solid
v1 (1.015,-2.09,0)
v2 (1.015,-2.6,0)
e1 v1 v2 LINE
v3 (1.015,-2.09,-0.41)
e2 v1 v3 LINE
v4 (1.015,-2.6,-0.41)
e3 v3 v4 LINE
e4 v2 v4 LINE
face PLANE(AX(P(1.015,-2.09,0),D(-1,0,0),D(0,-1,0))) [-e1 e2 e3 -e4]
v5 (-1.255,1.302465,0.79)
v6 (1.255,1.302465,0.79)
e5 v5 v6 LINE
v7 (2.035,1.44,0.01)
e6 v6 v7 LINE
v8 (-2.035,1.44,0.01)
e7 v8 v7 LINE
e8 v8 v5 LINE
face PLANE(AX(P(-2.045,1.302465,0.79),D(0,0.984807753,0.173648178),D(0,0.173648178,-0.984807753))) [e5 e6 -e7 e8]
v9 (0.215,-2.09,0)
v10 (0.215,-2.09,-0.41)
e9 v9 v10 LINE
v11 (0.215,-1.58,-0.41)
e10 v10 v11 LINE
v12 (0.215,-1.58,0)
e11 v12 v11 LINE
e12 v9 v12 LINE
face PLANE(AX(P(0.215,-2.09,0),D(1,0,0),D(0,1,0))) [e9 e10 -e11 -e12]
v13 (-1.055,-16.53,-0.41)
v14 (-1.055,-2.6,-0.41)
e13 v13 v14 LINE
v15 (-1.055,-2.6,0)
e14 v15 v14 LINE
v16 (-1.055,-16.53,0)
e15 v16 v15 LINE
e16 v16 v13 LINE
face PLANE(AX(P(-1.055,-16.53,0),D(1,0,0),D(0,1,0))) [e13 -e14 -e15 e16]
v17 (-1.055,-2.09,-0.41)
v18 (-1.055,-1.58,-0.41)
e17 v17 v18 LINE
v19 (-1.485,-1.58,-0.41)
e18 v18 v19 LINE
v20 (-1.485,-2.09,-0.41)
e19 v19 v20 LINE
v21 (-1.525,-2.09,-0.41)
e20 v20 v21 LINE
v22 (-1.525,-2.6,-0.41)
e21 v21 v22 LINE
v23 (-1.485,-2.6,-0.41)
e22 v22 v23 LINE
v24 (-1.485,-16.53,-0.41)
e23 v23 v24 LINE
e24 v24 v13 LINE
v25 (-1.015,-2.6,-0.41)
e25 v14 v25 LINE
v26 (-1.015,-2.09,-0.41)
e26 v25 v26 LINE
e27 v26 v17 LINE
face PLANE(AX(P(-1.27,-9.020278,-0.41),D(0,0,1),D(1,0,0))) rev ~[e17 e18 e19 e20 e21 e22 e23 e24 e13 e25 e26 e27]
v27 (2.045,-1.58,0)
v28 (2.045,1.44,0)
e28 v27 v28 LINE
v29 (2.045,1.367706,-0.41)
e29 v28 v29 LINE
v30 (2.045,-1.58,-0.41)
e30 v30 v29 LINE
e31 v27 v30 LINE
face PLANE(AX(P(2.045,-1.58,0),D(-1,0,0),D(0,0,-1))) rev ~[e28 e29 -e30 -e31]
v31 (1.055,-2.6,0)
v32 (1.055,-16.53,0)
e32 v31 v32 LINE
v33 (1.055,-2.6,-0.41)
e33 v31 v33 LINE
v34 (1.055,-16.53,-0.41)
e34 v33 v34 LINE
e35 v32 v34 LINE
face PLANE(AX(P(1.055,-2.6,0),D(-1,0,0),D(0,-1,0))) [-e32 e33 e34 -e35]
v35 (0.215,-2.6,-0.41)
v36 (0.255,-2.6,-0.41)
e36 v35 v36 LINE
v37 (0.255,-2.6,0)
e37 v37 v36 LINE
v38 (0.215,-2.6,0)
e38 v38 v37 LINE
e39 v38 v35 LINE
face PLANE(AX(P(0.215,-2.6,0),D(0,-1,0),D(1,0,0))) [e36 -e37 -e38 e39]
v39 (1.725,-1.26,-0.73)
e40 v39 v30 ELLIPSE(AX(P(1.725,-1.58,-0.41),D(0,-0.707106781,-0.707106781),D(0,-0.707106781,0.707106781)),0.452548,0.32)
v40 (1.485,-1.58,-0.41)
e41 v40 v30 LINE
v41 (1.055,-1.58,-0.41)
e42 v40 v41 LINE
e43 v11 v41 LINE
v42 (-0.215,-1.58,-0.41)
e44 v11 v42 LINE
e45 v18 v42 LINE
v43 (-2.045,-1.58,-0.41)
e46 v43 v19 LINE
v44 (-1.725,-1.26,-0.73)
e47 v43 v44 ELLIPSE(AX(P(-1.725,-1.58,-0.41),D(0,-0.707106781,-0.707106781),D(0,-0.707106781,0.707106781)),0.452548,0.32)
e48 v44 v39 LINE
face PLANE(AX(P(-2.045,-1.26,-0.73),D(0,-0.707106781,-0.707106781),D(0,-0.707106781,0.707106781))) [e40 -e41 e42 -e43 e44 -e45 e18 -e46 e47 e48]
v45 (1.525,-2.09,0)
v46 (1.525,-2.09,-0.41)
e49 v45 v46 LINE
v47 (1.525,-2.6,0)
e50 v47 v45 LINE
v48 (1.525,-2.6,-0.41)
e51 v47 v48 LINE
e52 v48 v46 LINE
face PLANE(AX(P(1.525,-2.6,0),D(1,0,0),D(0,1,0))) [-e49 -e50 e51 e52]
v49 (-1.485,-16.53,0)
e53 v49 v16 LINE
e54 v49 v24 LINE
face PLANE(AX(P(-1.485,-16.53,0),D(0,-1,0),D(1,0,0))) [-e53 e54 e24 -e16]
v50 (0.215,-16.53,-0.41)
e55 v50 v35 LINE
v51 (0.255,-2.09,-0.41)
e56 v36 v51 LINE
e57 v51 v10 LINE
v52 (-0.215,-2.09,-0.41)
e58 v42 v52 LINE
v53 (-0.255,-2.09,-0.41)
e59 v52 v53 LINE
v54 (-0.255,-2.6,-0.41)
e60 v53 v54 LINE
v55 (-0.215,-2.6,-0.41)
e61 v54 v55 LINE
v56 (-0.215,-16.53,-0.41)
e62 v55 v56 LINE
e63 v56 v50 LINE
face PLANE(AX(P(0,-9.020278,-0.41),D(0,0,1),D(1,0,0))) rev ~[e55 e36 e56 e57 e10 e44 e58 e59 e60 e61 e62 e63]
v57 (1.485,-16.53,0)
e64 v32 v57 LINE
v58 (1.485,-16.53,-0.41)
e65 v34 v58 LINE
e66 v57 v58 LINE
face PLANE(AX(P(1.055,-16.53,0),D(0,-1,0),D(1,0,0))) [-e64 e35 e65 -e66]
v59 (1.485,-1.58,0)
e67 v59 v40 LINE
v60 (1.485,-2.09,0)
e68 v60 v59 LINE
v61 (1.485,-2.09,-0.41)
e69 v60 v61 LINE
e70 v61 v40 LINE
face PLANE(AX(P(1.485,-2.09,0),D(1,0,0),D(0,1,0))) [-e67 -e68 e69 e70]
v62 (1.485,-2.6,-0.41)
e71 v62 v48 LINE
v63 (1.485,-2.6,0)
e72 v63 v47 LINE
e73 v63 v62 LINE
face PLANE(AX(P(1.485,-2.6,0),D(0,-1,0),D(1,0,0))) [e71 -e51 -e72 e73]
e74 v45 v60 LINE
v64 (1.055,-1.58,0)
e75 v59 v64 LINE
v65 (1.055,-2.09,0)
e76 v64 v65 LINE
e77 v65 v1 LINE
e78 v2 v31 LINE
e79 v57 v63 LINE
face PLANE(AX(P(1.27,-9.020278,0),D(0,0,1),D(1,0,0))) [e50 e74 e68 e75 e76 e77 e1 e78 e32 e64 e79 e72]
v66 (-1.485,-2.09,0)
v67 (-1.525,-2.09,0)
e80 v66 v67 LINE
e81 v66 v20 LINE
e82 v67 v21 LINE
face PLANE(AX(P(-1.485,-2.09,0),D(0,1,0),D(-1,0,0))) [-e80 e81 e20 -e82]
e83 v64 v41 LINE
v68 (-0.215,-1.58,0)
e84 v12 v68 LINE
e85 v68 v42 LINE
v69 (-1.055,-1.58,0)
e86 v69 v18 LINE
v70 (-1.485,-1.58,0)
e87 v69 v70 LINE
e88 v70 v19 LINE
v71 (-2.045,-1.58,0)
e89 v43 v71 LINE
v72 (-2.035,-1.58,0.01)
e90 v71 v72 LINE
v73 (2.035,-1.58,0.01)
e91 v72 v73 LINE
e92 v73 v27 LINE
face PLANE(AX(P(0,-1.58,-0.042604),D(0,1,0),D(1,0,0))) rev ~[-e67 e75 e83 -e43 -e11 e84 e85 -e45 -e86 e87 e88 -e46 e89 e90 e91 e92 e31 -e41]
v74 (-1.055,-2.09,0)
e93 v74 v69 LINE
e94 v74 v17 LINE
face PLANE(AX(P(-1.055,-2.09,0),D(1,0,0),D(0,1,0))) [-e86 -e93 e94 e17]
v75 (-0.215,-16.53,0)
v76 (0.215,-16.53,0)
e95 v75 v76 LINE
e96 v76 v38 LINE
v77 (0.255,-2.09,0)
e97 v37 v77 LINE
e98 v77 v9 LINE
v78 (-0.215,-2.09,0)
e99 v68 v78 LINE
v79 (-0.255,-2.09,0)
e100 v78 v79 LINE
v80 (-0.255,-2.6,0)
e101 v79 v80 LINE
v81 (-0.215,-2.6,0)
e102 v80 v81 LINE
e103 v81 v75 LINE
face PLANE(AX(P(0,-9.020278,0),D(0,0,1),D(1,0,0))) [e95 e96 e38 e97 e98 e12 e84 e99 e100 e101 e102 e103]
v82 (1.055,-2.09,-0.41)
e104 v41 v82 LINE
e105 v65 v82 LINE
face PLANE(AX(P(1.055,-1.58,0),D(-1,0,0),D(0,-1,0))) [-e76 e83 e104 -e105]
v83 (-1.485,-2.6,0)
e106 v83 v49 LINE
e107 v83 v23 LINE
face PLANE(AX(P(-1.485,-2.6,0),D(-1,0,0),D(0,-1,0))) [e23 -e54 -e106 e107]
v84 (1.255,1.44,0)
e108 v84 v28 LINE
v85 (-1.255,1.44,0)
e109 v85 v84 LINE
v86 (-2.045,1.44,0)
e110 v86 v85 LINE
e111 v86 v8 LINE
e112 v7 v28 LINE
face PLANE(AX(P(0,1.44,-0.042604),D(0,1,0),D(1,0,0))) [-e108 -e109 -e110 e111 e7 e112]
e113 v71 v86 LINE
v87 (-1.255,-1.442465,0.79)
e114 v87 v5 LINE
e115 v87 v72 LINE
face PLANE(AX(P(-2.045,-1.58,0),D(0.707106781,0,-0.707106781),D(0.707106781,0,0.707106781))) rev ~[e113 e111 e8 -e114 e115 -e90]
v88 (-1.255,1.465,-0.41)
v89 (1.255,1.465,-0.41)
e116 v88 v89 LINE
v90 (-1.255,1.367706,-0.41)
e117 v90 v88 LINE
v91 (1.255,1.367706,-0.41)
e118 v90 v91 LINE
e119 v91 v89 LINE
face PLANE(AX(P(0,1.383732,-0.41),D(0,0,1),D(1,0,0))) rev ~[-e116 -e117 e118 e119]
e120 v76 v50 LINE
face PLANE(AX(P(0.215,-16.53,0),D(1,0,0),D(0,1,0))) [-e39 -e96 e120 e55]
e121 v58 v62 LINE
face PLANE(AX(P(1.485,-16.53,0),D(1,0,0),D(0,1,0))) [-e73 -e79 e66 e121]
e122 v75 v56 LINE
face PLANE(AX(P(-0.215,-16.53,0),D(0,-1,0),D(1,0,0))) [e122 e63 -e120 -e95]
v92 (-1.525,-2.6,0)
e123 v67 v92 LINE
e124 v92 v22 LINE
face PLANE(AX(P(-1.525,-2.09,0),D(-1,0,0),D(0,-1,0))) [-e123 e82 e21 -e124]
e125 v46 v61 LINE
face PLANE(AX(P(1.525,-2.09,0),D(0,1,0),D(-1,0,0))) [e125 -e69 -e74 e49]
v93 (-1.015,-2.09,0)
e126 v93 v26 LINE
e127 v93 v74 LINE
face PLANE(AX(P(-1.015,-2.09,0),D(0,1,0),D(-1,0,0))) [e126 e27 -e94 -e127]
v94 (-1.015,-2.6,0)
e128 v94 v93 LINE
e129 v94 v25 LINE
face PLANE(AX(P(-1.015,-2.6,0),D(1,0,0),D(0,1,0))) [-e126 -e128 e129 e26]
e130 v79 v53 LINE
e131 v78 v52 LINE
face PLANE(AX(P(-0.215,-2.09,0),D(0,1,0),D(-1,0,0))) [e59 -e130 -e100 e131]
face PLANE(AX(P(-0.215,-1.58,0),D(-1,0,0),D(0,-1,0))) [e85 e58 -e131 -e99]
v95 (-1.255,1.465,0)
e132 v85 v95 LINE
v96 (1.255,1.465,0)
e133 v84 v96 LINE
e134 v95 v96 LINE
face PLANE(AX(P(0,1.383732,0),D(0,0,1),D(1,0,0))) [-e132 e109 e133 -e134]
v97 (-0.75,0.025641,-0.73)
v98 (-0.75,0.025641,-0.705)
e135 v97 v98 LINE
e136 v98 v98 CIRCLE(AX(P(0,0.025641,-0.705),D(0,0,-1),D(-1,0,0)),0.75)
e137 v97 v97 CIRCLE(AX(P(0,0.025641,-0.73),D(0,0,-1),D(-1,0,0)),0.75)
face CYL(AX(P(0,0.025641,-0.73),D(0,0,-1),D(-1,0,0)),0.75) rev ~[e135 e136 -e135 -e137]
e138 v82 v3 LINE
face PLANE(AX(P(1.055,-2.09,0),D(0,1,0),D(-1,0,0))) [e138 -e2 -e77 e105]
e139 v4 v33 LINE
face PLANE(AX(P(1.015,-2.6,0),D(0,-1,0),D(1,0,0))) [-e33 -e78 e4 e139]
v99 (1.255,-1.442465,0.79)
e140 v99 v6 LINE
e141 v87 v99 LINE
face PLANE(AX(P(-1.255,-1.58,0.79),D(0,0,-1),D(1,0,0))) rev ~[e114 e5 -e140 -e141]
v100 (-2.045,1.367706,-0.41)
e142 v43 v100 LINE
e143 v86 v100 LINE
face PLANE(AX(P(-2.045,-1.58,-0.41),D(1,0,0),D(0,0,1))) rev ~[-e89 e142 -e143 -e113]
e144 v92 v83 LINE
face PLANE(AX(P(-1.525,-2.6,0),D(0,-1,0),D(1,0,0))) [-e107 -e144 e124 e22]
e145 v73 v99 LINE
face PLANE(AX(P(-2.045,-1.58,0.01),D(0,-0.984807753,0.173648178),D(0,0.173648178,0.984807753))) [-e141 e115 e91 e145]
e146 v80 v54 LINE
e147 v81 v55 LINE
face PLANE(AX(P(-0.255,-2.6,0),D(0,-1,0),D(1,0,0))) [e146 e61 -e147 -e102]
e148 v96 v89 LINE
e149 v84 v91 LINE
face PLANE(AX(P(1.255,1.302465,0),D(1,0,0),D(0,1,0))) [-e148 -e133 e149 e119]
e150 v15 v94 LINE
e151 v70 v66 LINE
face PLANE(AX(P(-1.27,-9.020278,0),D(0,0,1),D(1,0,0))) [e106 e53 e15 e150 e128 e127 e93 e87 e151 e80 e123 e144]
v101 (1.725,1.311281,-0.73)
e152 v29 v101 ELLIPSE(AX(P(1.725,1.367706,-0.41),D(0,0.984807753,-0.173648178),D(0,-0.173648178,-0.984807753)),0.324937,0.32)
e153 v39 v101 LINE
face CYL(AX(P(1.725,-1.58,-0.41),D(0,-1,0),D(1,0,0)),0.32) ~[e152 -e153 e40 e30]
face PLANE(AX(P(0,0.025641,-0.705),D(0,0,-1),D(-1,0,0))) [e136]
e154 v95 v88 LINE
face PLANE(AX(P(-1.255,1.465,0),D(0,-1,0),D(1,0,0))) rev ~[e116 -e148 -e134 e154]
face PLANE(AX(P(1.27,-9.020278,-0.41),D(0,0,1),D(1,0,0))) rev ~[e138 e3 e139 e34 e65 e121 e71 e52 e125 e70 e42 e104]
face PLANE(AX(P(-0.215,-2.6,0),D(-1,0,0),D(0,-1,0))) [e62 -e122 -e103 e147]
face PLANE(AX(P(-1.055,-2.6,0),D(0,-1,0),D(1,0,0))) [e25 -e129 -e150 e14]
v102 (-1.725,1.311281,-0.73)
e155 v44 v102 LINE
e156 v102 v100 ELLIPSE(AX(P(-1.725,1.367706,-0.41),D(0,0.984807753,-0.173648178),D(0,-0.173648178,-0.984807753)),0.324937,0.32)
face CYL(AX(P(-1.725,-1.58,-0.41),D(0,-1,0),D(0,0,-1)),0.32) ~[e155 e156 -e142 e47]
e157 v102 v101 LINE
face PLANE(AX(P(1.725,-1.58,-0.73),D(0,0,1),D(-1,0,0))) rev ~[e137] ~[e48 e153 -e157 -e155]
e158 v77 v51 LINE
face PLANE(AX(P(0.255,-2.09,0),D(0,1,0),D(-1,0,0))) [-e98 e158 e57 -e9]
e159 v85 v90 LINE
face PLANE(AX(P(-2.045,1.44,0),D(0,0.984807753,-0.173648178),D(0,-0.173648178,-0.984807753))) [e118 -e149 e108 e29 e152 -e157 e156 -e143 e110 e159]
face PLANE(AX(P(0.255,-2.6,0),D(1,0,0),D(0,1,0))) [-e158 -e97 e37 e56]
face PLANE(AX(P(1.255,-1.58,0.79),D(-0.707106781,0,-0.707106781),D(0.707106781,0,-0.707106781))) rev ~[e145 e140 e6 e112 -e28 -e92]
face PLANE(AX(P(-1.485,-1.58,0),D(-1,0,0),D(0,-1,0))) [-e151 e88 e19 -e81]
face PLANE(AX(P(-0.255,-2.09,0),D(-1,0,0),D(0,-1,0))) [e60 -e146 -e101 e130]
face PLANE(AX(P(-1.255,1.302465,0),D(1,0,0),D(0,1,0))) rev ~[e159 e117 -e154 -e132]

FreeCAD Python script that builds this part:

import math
import FreeCAD as App
import Part
import Sketcher

V = App.Vector
Q = App.Units.Quantity


def add_polygon(sketch, points):
    """Adds a closed chain of lines whose ends are joined by coincident constraints."""
    first, n = sketch.GeometryCount, len(points)
    for a, b in zip(points, points[1:] + points[:1]):
        sketch.addGeometry(Part.LineSegment(App.Vector(*a, 0), App.Vector(*b, 0)), False)
    for i in range(n):
        sketch.addConstraint(Sketcher.Constraint("Coincident", first + i, 2, first + (i + 1) % n, 1))

doc = App.newDocument("Part")
params = doc.addObject("Spreadsheet::Sheet", "Params")
for row, (alias, value) in enumerate([
    ("sketch1_radius", "0.32 mm"),
    ("sketch1_width", "2.51 mm"),
    ("sketch1_width2", "3.45 mm"),
    ("sketch1_height", "0.41 mm"),
    ("pad1_length", "1.44 mm"),
    ("pad1_length2", "1.58 mm"),
    ("sketch2_width", "0.32 mm"),
    ("sketch2_height", "0.78 mm"),
    ("sketch2_height2", "0.73 mm"),
    ("pocket1_length", "4.09 mm"),
    ("sketch3_width", "0.43 mm"),
    ("sketch3_width2", "0.04 mm"),
    ("sketch3_width3", "2.51 mm"),
    ("sketch3_height", "0.51 mm"),
    ("sketch3_height2", "13.93 mm"),
    ("pad2_length", "0.41 mm"),
    ("sketch4_diameter", "1.5 mm"),
    ("pocket2_length", "0.025 mm"),
], start=1):
    params.set(f"A{row}", alias)
    params.set(f"B{row}", "=" + value)
    params.setAlias(f"B{row}", alias)

body = doc.addObject("PartDesign::Body", "Body")

# Sketch on XZ plane
sketch1 = body.newObject("Sketcher::SketchObject", "Sketch")
sketch1.AttachmentSupport = (doc.getObject("XZ_Plane"), [""])
sketch1.MapMode = "FlatFace"
sketch1.addGeometry([
    Part.LineSegment(V(-2.045, 0, 0), V(-1.255, 0.79, 0)),  # 0
    Part.LineSegment(V(-1.255, 0.79, 0), V(1.255, 0.79, 0)),  # 1
    Part.LineSegment(V(1.255, 0.79, 0), V(2.045, 0, 0)),  # 2
    Part.LineSegment(V(2.045, 0, 0), V(2.045, -0.41, 0)),  # 3
    Part.ArcOfCircle(Part.Circle(V(1.725, -0.41, 0), V(0, 0, 1), 0.32), math.radians(-90), math.radians(0)),  # 4
    Part.LineSegment(V(1.725, -0.73, 0), V(-1.725, -0.73, 0)),  # 5
    Part.ArcOfCircle(Part.Circle(V(-1.725, -0.41, 0), V(0, 0, 1), 0.32), math.radians(180), math.radians(270)),  # 6
    Part.LineSegment(V(-2.045, -0.41, 0), V(-2.045, 0, 0)),  # 7
], False)
sketch1.addConstraint([
    Sketcher.Constraint("Coincident", 0, 2, 1, 1),
    Sketcher.Constraint("Coincident", 1, 2, 2, 1),
    Sketcher.Constraint("Coincident", 2, 2, 3, 1),
    Sketcher.Constraint("Tangent", 3, 2, 4, 2),
    Sketcher.Constraint("Tangent", 4, 1, 5, 1),
    Sketcher.Constraint("Tangent", 5, 2, 6, 2),
    Sketcher.Constraint("Tangent", 6, 1, 7, 1),
    Sketcher.Constraint("Coincident", 7, 2, 0, 1),
    Sketcher.Constraint("Horizontal", 1),
    Sketcher.Constraint("Vertical", 3),
    Sketcher.Constraint("Horizontal", 5),
    Sketcher.Constraint("Vertical", 7),
    Sketcher.Constraint("Equal", 4, 6),
    Sketcher.Constraint("Symmetric", 2, 2, 7, 2, -1, 1),
    Sketcher.Constraint("PointOnObject", 2, 2, -1),
    Sketcher.Constraint("Perpendicular", 0, 2),
    Sketcher.Constraint("Equal", 0, 2),
    Sketcher.Constraint("Radius", 4, 0.32),
    Sketcher.Constraint("DistanceX", 1, 1, 1, 2, 2.51),
    Sketcher.Constraint("DistanceX", 5, 2, 5, 1, 3.45),
    Sketcher.Constraint("DistanceY", 3, 2, 3, 1, 0.41),
])
sketch1.setExpression("Constraints[17]", "Params.sketch1_radius")
sketch1.setExpression("Constraints[18]", "Params.sketch1_width")
sketch1.setExpression("Constraints[19]", "Params.sketch1_width2")
sketch1.setExpression("Constraints[20]", "Params.sketch1_height")
pad1 = body.newObject("PartDesign::Pad", "Pad")
pad1.Profile = sketch1
pad1.Type = "TwoLengths"
pad1.setExpression("Length", "Params.pad1_length")
pad1.setExpression("Length2", "Params.pad1_length2")
pad1.Reversed = True

# Sketch on YZ plane
sketch2 = body.newObject("Sketcher::SketchObject", "Sketch001")
sketch2.AttachmentSupport = (doc.getObject("YZ_Plane"), [""])
sketch2.MapMode = "FlatFace"
sketch2.AttachmentOffset = App.Placement(V(0, 0, -2.045), App.Rotation())
add_polygon(sketch2, [(-1.58, -0.41), (-1.58, -0.73), (-1.26, -0.73)])  # lines 0-2
add_polygon(sketch2, [(1.44, 0.01), (1.44, 0.79), (1.302465, 0.79)])  # lines 3-5
add_polygon(sketch2, [(-1.58, 0.01), (-1.442465, 0.79), (-1.58, 0.79)])  # lines 6-8
add_polygon(sketch2, [(1.311281, -0.73), (1.44, -0.73), (1.44, 0)])  # lines 9-11
sketch2.addConstraint([
    Sketcher.Constraint("Vertical", 0),
    Sketcher.Constraint("Horizontal", 1),
    Sketcher.Constraint("Vertical", 3),
    Sketcher.Constraint("Horizontal", 4),
    Sketcher.Constraint("Horizontal", 7),
    Sketcher.Constraint("Vertical", 8),
    Sketcher.Constraint("Horizontal", 9),
    Sketcher.Constraint("Vertical", 10),
    Sketcher.Constraint("PointOnObject", 10, 2, -1),
    Sketcher.Constraint("Parallel", 6, 11),
    Sketcher.Constraint("Horizontal", 4, 2, 6, 2),
    Sketcher.Constraint("Horizontal", 5, 2, 8, 2),
    Sketcher.Constraint("Horizontal", 1, 2, 9, 2),
    Sketcher.Constraint("Vertical", 2, 2, 7, 2),
    Sketcher.Constraint("Vertical", 5, 2, 9, 2),
    Sketcher.Constraint("Equal", 4, 7),
    Sketcher.Constraint("Equal", 1, 0),
    Sketcher.Constraint("Angle", 5, Q("-80 deg")),
    Sketcher.Constraint("DistanceX", 1, 1, 1, 2, 0.32),
    Sketcher.Constraint("DistanceY", 3, 1, 3, 2, 0.78),
    Sketcher.Constraint("DistanceY", 10, 1, 10, 2, 0.73),
    Sketcher.Constraint("DistanceX", 1, 2, 3, 2, 2.7),
    Sketcher.Constraint("DistanceY", 2, 2, 3, 2, 1.2),
    Sketcher.Constraint("DistanceX", 0, 2, -1, 1, 1.58),
])
sketch2.setExpression("Constraints[30]", "Params.sketch2_width")
sketch2.setExpression("Constraints[31]", "Params.sketch2_height")
sketch2.setExpression("Constraints[32]", "Params.sketch2_height2")
pocket1 = body.newObject("PartDesign::Pocket", "Pocket")
pocket1.Profile = sketch2
pocket1.setExpression("Length", "Params.pocket1_length")
pocket1.Reversed = True

# Sketch on XY plane
sketch3 = body.newObject("Sketcher::SketchObject", "Sketch002")
sketch3.AttachmentSupport = (doc.getObject("XY_Plane"), [""])
sketch3.MapMode = "FlatFace"
add_polygon(sketch3, [(1.485, -1.58), (1.055, -1.58), (1.055, -2.09), (1.015, -2.09), (1.015, -2.6), (1.055, -2.6), (1.055, -16.53), (1.485, -16.53), (1.485, -2.6), (1.525, -2.6), (1.525, -2.09), (1.485, -2.09)])  # lines 0-11
add_polygon(sketch3, [(0.215, -1.58), (-0.215, -1.58), (-0.215, -2.09), (-0.255, -2.09), (-0.255, -2.6), (-0.215, -2.6), (-0.215, -16.53), (0.215, -16.53), (0.215, -2.6), (0.255, -2.6), (0.255, -2.09), (0.215, -2.09)])  # lines 12-23
add_polygon(sketch3, [(-1.055, -1.58), (-1.485, -1.58), (-1.485, -2.09), (-1.525, -2.09), (-1.525, -2.6), (-1.485, -2.6), (-1.485, -16.53), (-1.055, -16.53), (-1.055, -2.6), (-1.015, -2.6), (-1.015, -2.09), (-1.055, -2.09)])  # lines 24-35
add_polygon(sketch3, [(-1.255, 1.465), (-1.255, 1.302465), (1.255, 1.302465), (1.255, 1.465)])  # lines 36-39
sketch3.addConstraint([
    Sketcher.Constraint("Horizontal", 0),
    Sketcher.Constraint("Vertical", 1),
    Sketcher.Constraint("Horizontal", 2),
    Sketcher.Constraint("Vertical", 3),
    Sketcher.Constraint("Horizontal", 4),
    Sketcher.Constraint("Vertical", 5),
    Sketcher.Constraint("Horizontal", 6),
    Sketcher.Constraint("Vertical", 7),
    Sketcher.Constraint("Horizontal", 8),
    Sketcher.Constraint("Vertical", 9),
    Sketcher.Constraint("Horizontal", 10),
    Sketcher.Constraint("Vertical", 11),
    Sketcher.Constraint("Horizontal", 12),
    Sketcher.Constraint("Vertical", 13),
    Sketcher.Constraint("Horizontal", 14),
    Sketcher.Constraint("Vertical", 15),
    Sketcher.Constraint("Horizontal", 16),
    Sketcher.Constraint("Vertical", 17),
    Sketcher.Constraint("Horizontal", 18),
    Sketcher.Constraint("Vertical", 19),
    Sketcher.Constraint("Horizontal", 20),
    Sketcher.Constraint("Vertical", 21),
    Sketcher.Constraint("Horizontal", 22),
    Sketcher.Constraint("Vertical", 23),
    Sketcher.Constraint("Horizontal", 24),
    Sketcher.Constraint("Vertical", 25),
    Sketcher.Constraint("Horizontal", 26),
    Sketcher.Constraint("Vertical", 27),
    Sketcher.Constraint("Horizontal", 28),
    Sketcher.Constraint("Vertical", 29),
    Sketcher.Constraint("Horizontal", 30),
    Sketcher.Constraint("Vertical", 31),
    Sketcher.Constraint("Horizontal", 32),
    Sketcher.Constraint("Vertical", 33),
    Sketcher.Constraint("Horizontal", 34),
    Sketcher.Constraint("Vertical", 35),
    Sketcher.Constraint("Vertical", 36),
    Sketcher.Constraint("Horizontal", 37),
    Sketcher.Constraint("Vertical", 38),
    Sketcher.Constraint("Horizontal", 39),
    Sketcher.Constraint("Symmetric", 16, 2, 19, 2, -2),
    Sketcher.Constraint("Symmetric", 14, 2, 21, 2, -2),
    Sketcher.Constraint("Symmetric", 11, 2, 24, 2, -2),
    Sketcher.Constraint("Symmetric", 9, 2, 26, 2, -2),
    Sketcher.Constraint("Symmetric", 7, 2, 28, 2, -2),
    Sketcher.Constraint("Symmetric", 5, 2, 30, 2, -2),
    Sketcher.Constraint("Symmetric", 3, 2, 32, 2, -2),
    Sketcher.Constraint("Symmetric", 1, 2, 34, 2, -2),
    Sketcher.Constraint("Horizontal", 4, 2, 7, 2),
    Sketcher.Constraint("Horizontal", 2, 2, 9, 2),
    Sketcher.Constraint("Horizontal", 11, 2, 12, 2),
    Sketcher.Constraint("Horizontal", 10, 2, 13, 2),
    Sketcher.Constraint("Horizontal", 8, 2, 15, 2),
    Sketcher.Constraint("Horizontal", 6, 2, 17, 2),
    Sketcher.Constraint("Vertical", 1, 2, 4, 2),
    Sketcher.Constraint("Vertical", 7, 2, 10, 2),
    Sketcher.Constraint("Vertical", 13, 2, 16, 2),
    Sketcher.Constraint("Vertical", 19, 2, 22, 2),
    Sketcher.Constraint("Equal", 4, 8),
    Sketcher.Constraint("Equal", 6, 12),
    Sketcher.Constraint("Equal", 10, 14),
    Sketcher.Constraint("Equal", 1, 3),
    Sketcher.Constraint("DistanceX", 0, 2, 0, 1, 0.43),
    Sketcher.Constraint("DistanceX", 2, 2, 2, 1, 0.04),
    Sketcher.Constraint("DistanceX", 37, 1, 37, 2, 2.51),
    Sketcher.Constraint("DistanceY", 1, 2, 1, 1, 0.51),
    Sketcher.Constraint("DistanceY", 5, 2, 5, 1, 13.93),
    Sketcher.Constraint("DistanceY", 3, 2, -1, 1, 2.6),
    Sketcher.Constraint("DistanceX", 17, 2, 6, 2, 1.7),
    Sketcher.Constraint("DistanceX", 36, 2, 35, 2, 0.2),
    Sketcher.Constraint("DistanceY", -1, 1, 38, 2, 1.465),
    Sketcher.Constraint("DistanceY", 36, 2, 36, 1, 0.162535),
])
sketch3.setExpression("Constraints[102]", "Params.sketch3_width")
sketch3.setExpression("Constraints[103]", "Params.sketch3_width2")
sketch3.setExpression("Constraints[104]", "Params.sketch3_width3")
sketch3.setExpression("Constraints[105]", "Params.sketch3_height")
sketch3.setExpression("Constraints[106]", "Params.sketch3_height2")
pad2 = body.newObject("PartDesign::Pad", "Pad001")
pad2.Profile = sketch3
pad2.setExpression("Length", "Params.pad2_length")
pad2.Reversed = True

# Sketch on XY plane
sketch4 = body.newObject("Sketcher::SketchObject", "Sketch003")
sketch4.AttachmentSupport = (doc.getObject("XY_Plane"), [""])
sketch4.MapMode = "FlatFace"
sketch4.AttachmentOffset = App.Placement(V(0, 0, -0.73), App.Rotation())
sketch4.addGeometry(Part.Circle(V(0, 0.025641, 0), V(0, 0, 1), 0.75), False)
sketch4.addConstraint([
    Sketcher.Constraint("PointOnObject", 0, 3, -2),
    Sketcher.Constraint("Diameter", 0, 1.5),
    Sketcher.Constraint("DistanceY", -1, 1, 0, 3, 0.025641),
])
sketch4.setExpression("Constraints[1]", "Params.sketch4_diameter")
pocket2 = body.newObject("PartDesign::Pocket", "Pocket001")
pocket2.Profile = sketch4
pocket2.setExpression("Length", "Params.pocket2_length")
pocket2.Reversed = True

doc.recompute()
